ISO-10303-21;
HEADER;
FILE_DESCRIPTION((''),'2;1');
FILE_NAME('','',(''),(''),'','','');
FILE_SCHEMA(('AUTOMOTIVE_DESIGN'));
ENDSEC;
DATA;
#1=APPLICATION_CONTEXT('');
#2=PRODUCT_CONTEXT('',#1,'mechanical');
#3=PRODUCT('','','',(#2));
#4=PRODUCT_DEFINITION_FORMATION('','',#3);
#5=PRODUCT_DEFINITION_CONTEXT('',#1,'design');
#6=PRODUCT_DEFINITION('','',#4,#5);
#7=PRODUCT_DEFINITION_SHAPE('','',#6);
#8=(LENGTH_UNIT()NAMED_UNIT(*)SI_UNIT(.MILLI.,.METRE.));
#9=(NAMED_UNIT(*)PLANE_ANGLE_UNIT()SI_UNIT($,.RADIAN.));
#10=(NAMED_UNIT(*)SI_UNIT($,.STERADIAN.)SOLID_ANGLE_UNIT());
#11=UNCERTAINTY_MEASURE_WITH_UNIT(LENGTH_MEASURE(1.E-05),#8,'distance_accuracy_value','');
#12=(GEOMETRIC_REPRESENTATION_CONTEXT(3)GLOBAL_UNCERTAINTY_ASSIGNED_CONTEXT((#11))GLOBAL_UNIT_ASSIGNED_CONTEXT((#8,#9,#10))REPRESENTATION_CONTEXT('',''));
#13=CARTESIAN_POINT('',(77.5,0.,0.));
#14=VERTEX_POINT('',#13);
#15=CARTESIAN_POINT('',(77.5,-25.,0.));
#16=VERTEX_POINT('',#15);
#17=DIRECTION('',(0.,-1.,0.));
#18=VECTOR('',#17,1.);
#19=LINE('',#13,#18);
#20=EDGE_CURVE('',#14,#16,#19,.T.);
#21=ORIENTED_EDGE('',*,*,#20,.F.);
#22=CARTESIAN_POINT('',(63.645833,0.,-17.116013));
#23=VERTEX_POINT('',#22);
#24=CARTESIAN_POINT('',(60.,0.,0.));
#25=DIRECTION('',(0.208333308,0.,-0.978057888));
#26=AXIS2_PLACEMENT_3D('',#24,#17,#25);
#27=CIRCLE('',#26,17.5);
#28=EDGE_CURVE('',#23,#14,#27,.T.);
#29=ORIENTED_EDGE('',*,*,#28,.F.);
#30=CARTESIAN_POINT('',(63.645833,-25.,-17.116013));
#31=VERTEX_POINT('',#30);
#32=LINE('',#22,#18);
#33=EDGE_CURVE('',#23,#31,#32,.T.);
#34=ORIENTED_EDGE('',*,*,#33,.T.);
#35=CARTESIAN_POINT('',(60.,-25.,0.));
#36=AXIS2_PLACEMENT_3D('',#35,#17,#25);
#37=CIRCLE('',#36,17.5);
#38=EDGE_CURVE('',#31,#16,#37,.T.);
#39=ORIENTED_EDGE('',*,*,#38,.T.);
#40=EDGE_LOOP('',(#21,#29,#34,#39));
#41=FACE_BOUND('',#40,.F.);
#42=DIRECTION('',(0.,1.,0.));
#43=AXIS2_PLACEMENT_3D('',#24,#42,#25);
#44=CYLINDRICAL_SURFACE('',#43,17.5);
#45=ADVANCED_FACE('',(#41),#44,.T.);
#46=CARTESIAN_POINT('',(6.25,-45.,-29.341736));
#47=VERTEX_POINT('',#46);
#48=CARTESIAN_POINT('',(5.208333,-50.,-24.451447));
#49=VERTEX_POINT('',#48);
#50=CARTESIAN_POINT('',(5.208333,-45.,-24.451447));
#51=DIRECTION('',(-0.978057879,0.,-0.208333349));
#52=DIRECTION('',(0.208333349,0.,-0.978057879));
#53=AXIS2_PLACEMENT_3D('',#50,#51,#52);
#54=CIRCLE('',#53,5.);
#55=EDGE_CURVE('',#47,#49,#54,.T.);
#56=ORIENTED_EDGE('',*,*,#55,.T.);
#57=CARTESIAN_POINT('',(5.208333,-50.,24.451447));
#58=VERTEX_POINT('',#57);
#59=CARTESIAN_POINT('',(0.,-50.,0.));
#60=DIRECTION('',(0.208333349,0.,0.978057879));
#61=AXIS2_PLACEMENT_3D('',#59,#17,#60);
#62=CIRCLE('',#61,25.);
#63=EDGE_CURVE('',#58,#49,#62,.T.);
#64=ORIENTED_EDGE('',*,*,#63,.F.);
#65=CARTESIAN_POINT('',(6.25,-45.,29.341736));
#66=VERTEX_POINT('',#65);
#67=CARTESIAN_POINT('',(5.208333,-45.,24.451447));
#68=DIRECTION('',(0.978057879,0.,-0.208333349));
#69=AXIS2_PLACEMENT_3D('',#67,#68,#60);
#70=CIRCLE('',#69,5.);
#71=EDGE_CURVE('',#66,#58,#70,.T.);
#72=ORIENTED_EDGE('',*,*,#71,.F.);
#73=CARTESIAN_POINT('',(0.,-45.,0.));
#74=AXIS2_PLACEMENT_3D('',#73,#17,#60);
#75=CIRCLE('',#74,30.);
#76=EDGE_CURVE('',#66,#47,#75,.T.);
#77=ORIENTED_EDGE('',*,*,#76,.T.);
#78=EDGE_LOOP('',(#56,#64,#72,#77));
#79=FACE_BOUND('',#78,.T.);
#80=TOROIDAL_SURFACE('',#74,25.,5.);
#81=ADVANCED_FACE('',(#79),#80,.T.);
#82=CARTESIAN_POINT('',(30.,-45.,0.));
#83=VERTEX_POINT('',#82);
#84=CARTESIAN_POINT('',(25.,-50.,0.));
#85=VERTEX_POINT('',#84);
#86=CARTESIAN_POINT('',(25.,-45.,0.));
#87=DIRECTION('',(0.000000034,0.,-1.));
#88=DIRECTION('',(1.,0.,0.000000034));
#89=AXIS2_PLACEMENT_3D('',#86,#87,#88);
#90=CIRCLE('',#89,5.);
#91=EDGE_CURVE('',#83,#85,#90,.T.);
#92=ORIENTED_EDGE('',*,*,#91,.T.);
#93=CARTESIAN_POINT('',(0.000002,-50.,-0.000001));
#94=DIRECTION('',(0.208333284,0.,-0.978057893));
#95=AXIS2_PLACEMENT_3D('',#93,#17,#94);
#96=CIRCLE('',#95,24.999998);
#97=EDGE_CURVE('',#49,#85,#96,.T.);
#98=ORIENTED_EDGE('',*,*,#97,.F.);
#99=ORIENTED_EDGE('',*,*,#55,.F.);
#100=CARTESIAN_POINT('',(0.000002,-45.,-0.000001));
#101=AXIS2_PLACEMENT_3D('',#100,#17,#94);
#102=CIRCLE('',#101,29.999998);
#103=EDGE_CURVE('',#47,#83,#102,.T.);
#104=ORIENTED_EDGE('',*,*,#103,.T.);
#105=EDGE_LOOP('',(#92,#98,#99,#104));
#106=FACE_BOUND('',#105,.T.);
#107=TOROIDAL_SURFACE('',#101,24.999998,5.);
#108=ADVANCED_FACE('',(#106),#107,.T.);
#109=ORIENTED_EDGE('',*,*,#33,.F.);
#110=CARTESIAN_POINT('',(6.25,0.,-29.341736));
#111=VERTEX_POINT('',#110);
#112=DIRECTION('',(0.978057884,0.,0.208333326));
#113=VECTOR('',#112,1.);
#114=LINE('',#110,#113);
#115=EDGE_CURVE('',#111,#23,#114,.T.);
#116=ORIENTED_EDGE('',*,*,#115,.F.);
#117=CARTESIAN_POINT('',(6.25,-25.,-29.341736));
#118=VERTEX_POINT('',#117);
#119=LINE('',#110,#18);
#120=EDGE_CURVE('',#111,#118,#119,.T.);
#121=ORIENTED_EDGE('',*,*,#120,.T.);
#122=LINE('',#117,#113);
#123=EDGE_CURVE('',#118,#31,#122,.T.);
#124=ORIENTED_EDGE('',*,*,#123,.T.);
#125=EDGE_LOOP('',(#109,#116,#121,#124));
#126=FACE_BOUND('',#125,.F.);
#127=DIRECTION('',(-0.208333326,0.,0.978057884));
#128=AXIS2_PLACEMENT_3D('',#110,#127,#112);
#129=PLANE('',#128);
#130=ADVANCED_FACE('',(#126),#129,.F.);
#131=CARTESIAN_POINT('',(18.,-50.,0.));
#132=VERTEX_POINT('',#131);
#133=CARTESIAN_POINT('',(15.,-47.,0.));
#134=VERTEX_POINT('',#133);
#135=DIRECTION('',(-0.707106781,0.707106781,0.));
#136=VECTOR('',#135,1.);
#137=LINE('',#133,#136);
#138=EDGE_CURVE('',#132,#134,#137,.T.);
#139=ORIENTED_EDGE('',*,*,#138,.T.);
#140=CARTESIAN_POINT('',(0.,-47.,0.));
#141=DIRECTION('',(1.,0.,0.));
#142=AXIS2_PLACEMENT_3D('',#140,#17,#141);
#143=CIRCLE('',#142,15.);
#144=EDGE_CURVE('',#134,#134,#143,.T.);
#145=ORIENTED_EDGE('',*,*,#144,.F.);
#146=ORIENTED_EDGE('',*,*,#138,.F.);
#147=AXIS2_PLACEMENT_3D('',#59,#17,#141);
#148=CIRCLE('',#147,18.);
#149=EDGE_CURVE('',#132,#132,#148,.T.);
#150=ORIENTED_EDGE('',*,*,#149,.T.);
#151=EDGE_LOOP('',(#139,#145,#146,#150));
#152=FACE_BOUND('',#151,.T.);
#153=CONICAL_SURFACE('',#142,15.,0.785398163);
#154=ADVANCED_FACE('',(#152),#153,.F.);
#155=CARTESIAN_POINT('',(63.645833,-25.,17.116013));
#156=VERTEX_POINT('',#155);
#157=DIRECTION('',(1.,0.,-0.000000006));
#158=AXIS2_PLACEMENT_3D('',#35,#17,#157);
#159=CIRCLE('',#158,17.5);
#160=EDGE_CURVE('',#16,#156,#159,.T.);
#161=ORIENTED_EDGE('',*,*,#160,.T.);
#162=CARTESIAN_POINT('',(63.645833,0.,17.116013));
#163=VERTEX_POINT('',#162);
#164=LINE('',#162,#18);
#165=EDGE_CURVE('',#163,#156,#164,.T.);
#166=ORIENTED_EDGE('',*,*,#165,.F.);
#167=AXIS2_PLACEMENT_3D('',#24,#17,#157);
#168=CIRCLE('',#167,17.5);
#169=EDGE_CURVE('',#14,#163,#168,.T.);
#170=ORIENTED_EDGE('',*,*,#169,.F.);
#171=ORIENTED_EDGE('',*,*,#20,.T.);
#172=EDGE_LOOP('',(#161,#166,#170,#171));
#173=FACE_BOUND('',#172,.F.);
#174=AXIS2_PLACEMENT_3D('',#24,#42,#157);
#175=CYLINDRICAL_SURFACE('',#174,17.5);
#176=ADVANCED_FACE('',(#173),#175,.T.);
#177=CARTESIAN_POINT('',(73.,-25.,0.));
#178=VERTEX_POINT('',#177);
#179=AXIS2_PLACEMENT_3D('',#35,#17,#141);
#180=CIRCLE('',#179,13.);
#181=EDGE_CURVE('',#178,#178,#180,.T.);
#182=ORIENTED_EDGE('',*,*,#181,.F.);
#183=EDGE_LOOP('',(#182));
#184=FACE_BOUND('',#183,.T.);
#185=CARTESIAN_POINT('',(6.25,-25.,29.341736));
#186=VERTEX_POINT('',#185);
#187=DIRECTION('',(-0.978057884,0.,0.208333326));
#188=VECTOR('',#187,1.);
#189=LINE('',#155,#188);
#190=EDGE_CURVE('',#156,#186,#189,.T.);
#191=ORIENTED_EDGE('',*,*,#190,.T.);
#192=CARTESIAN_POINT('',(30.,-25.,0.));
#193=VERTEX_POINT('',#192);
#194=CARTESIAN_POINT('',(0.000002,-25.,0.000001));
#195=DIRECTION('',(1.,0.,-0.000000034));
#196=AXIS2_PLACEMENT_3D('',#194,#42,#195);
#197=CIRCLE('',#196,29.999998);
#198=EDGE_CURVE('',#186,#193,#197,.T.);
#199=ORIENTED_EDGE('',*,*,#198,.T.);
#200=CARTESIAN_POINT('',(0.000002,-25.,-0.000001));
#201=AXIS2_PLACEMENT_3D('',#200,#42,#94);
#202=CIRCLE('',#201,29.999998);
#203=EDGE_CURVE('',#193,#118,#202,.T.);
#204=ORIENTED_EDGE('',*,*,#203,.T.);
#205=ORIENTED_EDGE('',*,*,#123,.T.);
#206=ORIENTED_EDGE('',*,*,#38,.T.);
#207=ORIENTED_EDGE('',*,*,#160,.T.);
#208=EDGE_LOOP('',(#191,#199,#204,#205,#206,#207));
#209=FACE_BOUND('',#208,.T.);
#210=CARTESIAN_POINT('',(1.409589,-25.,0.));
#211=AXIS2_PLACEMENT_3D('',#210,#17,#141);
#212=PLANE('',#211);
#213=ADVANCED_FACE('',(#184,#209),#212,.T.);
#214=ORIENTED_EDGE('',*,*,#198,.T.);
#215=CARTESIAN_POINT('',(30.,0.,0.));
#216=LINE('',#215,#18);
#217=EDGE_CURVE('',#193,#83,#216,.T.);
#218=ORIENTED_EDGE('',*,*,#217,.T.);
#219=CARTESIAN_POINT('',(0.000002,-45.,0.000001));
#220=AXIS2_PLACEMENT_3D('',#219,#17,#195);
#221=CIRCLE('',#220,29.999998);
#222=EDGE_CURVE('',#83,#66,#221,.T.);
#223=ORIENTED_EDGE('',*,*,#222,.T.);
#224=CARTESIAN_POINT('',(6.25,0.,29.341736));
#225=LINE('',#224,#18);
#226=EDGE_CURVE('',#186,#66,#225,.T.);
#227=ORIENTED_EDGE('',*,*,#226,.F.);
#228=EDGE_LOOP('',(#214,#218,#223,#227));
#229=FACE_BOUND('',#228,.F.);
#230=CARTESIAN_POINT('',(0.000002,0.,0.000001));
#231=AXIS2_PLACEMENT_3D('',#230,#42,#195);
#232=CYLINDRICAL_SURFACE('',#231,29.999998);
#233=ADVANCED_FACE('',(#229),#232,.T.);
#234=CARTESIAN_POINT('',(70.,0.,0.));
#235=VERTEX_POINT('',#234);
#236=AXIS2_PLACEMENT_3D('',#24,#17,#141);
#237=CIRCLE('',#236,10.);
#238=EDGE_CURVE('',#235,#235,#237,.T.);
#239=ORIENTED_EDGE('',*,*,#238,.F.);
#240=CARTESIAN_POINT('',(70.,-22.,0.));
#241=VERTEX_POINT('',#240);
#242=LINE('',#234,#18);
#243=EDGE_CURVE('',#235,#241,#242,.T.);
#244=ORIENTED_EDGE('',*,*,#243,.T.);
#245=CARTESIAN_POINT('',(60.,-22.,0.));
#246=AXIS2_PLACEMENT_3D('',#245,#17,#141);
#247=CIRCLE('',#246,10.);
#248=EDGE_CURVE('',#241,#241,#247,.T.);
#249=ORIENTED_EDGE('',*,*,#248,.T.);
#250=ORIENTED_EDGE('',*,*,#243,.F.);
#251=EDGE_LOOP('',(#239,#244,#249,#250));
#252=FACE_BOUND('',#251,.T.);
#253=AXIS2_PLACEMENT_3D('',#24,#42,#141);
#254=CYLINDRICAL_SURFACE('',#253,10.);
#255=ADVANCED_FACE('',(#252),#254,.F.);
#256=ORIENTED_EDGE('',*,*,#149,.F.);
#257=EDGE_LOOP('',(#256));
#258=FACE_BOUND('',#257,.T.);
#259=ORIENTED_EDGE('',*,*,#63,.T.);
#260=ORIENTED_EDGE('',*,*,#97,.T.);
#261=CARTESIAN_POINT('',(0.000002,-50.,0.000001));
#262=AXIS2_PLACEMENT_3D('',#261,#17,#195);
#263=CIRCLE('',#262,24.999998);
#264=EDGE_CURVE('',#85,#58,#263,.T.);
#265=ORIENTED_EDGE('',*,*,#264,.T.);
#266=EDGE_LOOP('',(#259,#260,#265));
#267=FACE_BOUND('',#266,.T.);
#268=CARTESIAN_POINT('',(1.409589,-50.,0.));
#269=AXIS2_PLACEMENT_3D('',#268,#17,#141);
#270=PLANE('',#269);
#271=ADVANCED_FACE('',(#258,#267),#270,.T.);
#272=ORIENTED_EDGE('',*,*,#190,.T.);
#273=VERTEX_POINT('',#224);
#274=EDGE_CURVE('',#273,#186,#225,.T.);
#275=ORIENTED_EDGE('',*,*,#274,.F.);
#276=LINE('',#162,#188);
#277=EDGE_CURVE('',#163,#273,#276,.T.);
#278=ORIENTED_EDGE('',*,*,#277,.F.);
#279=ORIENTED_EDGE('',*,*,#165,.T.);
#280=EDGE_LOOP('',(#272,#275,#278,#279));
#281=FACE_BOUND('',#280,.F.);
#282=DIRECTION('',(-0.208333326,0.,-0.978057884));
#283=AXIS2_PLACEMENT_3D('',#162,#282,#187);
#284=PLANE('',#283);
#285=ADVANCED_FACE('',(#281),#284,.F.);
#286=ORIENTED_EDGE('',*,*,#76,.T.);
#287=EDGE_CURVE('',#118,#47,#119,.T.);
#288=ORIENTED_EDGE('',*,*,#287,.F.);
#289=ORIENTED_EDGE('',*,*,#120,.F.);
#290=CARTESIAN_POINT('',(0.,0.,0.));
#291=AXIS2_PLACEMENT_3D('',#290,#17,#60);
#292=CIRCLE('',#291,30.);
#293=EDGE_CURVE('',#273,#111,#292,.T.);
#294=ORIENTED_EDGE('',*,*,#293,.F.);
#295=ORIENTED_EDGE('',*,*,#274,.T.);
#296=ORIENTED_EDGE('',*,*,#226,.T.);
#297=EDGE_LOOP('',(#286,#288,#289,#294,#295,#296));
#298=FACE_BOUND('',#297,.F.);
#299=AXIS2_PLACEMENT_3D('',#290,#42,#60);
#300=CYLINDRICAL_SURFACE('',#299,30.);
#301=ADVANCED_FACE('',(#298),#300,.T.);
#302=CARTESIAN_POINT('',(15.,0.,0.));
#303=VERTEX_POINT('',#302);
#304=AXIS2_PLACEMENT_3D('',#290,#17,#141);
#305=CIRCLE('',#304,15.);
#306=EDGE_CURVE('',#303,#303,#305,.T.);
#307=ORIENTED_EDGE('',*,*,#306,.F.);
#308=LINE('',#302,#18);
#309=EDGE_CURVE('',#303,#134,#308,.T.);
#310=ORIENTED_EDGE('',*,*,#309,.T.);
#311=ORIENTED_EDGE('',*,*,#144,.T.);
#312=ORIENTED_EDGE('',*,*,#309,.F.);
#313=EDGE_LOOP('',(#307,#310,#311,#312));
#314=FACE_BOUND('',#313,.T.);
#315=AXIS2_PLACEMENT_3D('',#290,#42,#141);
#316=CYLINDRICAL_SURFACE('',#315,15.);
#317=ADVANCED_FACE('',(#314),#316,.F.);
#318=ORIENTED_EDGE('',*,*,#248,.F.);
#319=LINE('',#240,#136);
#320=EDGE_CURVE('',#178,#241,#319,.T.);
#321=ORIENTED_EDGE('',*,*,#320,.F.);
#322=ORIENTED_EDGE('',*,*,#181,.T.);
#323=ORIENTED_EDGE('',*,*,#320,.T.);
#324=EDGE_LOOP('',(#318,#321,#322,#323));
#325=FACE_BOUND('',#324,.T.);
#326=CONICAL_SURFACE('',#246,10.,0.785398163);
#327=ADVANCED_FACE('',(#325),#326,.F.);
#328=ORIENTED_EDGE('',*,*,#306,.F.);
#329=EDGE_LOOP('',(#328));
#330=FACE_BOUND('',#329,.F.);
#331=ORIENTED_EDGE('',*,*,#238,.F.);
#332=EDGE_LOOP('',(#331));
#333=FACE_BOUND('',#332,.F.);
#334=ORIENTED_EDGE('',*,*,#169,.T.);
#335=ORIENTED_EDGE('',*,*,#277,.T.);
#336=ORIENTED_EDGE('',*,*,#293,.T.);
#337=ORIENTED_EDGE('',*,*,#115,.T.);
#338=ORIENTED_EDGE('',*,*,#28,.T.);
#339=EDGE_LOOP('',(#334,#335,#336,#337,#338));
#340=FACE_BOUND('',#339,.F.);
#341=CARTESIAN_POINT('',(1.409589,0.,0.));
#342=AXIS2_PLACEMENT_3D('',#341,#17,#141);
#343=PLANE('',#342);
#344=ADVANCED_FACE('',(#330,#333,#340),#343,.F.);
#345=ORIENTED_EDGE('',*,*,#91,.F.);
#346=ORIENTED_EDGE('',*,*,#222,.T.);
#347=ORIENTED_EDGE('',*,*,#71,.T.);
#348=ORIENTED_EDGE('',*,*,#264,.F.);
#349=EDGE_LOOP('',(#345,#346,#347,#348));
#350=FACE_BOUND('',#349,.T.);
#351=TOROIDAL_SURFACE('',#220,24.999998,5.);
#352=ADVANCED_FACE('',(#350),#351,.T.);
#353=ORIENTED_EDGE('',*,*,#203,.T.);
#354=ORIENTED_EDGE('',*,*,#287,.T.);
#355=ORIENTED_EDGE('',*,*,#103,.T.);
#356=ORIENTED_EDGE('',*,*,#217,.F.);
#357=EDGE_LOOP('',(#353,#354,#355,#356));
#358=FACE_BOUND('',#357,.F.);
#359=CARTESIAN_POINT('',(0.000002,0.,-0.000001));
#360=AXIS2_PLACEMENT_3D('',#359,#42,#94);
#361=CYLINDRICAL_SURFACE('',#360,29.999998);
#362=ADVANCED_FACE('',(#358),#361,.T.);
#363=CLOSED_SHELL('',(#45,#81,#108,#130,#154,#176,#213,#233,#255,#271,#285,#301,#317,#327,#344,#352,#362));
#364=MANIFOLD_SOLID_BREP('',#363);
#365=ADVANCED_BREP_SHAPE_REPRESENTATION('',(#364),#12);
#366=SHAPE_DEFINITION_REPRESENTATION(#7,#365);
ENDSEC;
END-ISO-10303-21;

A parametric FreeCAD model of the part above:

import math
import FreeCAD as App
import Part
import Sketcher
Q = App.Units.Quantity


def edges_at(feature, points):
    """Names of the edges that pass closest to the given points."""
    edges = feature.Shape.Edges
    near = lambda p: min(range(len(edges)), key=lambda i: edges[i].distToShape(Part.Vertex(*p))[0])
    return sorted({f"Edge{near(p) + 1}" for p in points})

doc = App.newDocument("Part")
body = doc.addObject("PartDesign::Body", "Body")

sketch1 = body.newObject("Sketcher::SketchObject", "Sketch")
sketch1.AttachmentSupport = (doc.getObject("XZ_Plane"), [""])
sketch1.MapMode = "FlatFace"
sketch1.addGeometry(Part.ArcOfCircle(Part.Circle(App.Vector(0, 0, 0), App.Vector(0, 0, 1), 30), math.radians(77.9753), math.radians(282.0247)), False)
sketch1.addGeometry(Part.LineSegment(App.Vector(6.25, -29.341736, 0), App.Vector(63.645833, -17.116013, 0)), False)
sketch1.addGeometry(Part.ArcOfCircle(Part.Circle(App.Vector(60, 0, 0), App.Vector(0, 0, 1), 17.5), math.radians(-77.975302), math.radians(0)), False)
sketch1.addGeometry(Part.ArcOfCircle(Part.Circle(App.Vector(60, 0, 0), App.Vector(0, 0, 1), 17.5), math.radians(0), math.radians(77.975302)), False)
sketch1.addGeometry(Part.LineSegment(App.Vector(63.645833, 17.116013, 0), App.Vector(6.25, 29.341736, 0)), False)
sketch1.addGeometry(Part.Circle(App.Vector(0, 0, 0), App.Vector(0, 0, 1), 15), False)
sketch1.addGeometry(Part.Circle(App.Vector(60, 0, 0), App.Vector(0, 0, 1), 10), False)
sketch1.addConstraint(Sketcher.Constraint("Tangent", 0, 2, 1, 1))
sketch1.addConstraint(Sketcher.Constraint("Tangent", 1, 2, 2, 1))
sketch1.addConstraint(Sketcher.Constraint("Tangent", 2, 2, 3, 1))
sketch1.addConstraint(Sketcher.Constraint("Tangent", 3, 2, 4, 1))
sketch1.addConstraint(Sketcher.Constraint("Tangent", 4, 2, 0, 1))
sketch1.addConstraint(Sketcher.Constraint("Coincident", 0, 3, -1, 1))
sketch1.addConstraint(Sketcher.Constraint("Coincident", 5, 3, -1, 1))
sketch1.addConstraint(Sketcher.Constraint("Coincident", 6, 3, 2, 3))
sketch1.addConstraint(Sketcher.Constraint("Equal", 2, 3))
sketch1.addConstraint(Sketcher.Constraint("PointOnObject", 2, 3, -1))
sketch1.addConstraint(Sketcher.Constraint("PointOnObject", 2, 2, -1))
sketch1.addConstraint(Sketcher.Constraint("Diameter", 5, Q("30 mm")))
sketch1.addConstraint(Sketcher.Constraint("Diameter", 6, Q("20 mm")))
sketch1.addConstraint(Sketcher.Constraint("Radius", 0, Q("30 mm")))
sketch1.addConstraint(Sketcher.Constraint("Radius", 2, Q("17.5 mm")))
sketch1.addConstraint(Sketcher.Constraint("DistanceX", -1, 1, 2, 3, Q("60 mm")))
pad1 = body.newObject("PartDesign::Pad", "Pad")
pad1.Profile = sketch1
pad1.Length = 25

sketch2 = body.newObject("Sketcher::SketchObject", "Sketch001")
sketch2.AttachmentSupport = (doc.getObject("XZ_Plane"), [""])
sketch2.MapMode = "FlatFace"
sketch2.addGeometry(Part.ArcOfCircle(Part.Circle(App.Vector(0.000002, -0.000001, 0), App.Vector(0, 0, 1), 29.999998), math.radians(-77.975304), math.radians(0.000002)), False)
sketch2.addGeometry(Part.ArcOfCircle(Part.Circle(App.Vector(0.000002, 0.000001, 0), App.Vector(0, 0, 1), 29.999998), math.radians(-0.000002), math.radians(77.975304)), False)
sketch2.addGeometry(Part.ArcOfCircle(Part.Circle(App.Vector(0, 0, 0), App.Vector(0, 0, 1), 30), math.radians(77.9753), math.radians(282.0247)), False)
sketch2.addGeometry(Part.Circle(App.Vector(0, 0, 0), App.Vector(0, 0, 1), 15), False)
sketch2.addConstraint(Sketcher.Constraint("Tangent", 0, 2, 1, 1))
sketch2.addConstraint(Sketcher.Constraint("Tangent", 1, 2, 2, 1))
sketch2.addConstraint(Sketcher.Constraint("Tangent", 2, 2, 0, 1))
sketch2.addConstraint(Sketcher.Constraint("Coincident", 0, 3, -1, 1))
sketch2.addConstraint(Sketcher.Constraint("Coincident", 3, 3, -1, 1))
sketch2.addConstraint(Sketcher.Constraint("PointOnObject", 0, 2, -1))
sketch2.addConstraint(Sketcher.Constraint("Vertical", 1, 2, 2, 2))
sketch2.addConstraint(Sketcher.Constraint("Diameter", 3, Q("30 mm")))
sketch2.addConstraint(Sketcher.Constraint("Radius", 0, Q("29.999998 mm")))
sketch2.addConstraint(Sketcher.Constraint("DistanceX", -1, 1, 1, 2, Q("6.25 mm")))
pad2 = body.newObject("PartDesign::Pad", "Pad001")
pad2.Profile = sketch2
pad2.Length = 50
doc.recompute()

fillet = body.newObject("PartDesign::Fillet", "Fillet")
fillet.Base = (pad2, edges_at(pad2, [(-30, -50, 0)]))
fillet.Radius = 5
doc.recompute()

chamfer = body.newObject("PartDesign::Chamfer", "Chamfer")
chamfer.Base = (fillet, edges_at(fillet, [(-15, -50, 0), (50, -25, 0)]))
chamfer.Size = 3

doc.recompute()
